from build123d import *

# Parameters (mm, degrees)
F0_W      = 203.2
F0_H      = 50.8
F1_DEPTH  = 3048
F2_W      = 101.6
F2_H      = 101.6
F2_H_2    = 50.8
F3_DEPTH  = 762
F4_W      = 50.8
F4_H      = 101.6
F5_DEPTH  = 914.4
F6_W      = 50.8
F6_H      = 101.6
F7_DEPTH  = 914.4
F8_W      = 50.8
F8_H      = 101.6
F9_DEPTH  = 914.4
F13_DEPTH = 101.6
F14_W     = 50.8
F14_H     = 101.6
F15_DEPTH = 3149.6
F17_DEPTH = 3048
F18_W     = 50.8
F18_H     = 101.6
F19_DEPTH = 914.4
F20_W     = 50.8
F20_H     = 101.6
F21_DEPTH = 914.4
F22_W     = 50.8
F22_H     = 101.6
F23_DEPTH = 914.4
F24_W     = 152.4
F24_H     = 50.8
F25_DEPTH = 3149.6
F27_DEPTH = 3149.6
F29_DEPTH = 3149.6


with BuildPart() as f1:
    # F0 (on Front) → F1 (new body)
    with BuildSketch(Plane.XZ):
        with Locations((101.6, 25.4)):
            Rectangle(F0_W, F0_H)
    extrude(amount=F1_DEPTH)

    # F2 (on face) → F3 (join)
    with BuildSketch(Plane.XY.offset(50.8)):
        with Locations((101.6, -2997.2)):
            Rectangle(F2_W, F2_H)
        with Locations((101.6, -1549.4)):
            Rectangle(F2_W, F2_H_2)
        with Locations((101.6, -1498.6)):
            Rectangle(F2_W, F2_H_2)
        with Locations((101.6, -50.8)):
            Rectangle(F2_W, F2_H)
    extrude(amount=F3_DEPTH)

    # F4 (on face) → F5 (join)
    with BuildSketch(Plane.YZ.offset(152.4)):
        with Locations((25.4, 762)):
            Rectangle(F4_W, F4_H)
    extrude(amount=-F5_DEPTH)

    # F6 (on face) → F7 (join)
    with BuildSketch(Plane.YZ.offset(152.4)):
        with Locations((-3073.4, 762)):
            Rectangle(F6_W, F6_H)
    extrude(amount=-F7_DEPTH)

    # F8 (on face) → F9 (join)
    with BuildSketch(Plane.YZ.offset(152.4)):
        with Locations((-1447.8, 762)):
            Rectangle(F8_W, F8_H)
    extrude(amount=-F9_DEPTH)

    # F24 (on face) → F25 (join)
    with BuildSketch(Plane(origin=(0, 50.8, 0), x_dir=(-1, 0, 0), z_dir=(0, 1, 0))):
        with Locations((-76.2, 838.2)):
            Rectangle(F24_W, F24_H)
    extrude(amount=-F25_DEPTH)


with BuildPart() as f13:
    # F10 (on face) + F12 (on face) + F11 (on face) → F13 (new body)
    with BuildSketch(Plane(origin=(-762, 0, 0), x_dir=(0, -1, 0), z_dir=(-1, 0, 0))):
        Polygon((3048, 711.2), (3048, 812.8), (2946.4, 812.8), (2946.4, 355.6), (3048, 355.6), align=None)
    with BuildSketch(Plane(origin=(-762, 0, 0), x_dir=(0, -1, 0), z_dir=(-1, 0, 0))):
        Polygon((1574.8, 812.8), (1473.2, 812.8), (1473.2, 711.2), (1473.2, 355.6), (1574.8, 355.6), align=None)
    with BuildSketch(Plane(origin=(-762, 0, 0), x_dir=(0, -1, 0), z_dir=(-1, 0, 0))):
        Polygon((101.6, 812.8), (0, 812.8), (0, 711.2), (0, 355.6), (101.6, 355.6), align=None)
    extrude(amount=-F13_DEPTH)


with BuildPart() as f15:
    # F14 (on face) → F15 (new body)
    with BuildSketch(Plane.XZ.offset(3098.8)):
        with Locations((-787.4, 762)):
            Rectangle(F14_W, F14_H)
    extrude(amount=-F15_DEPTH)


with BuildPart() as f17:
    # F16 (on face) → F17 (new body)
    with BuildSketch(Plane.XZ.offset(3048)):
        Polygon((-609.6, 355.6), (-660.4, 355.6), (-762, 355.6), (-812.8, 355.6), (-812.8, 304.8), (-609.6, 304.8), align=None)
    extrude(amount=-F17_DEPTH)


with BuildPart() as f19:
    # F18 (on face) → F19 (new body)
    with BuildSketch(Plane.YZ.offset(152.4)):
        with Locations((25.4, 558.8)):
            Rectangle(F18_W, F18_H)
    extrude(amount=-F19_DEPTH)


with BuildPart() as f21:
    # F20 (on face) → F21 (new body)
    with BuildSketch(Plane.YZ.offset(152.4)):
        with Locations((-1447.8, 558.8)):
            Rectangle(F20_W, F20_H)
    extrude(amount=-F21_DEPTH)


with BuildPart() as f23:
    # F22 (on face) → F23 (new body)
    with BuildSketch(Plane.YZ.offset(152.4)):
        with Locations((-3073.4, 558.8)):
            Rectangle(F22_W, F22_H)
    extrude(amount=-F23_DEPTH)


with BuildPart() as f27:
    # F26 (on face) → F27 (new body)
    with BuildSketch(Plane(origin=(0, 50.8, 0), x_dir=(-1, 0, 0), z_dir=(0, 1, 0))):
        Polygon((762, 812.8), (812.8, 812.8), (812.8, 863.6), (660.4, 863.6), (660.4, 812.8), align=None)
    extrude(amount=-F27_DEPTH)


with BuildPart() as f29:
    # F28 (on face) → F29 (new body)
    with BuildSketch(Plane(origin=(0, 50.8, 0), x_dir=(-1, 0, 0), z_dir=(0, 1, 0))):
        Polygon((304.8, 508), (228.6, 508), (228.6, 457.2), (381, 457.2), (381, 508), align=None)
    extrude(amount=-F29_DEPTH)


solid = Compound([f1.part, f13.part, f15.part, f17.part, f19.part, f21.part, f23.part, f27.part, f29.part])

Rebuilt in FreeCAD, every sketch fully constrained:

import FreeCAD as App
import Part
import Sketcher
from FreeCAD import Vector
Q = App.Units.Quantity

doc = App.newDocument("Part")
body = doc.addObject("PartDesign::Body", "Body")

# Sketch on XZ plane
sketch1 = body.newObject("Sketcher::SketchObject", "Sketch")
sketch1.AttachmentSupport = (doc.getObject("XZ_Plane"), [""])
sketch1.MapMode = "FlatFace"
sketch1.addGeometry([
    Part.LineSegment(Vector(0, 50.8, 0), Vector(0, 0, 0)),
    Part.LineSegment(Vector(0, 0, 0), Vector(203.2, 0, 0)),
    Part.LineSegment(Vector(203.2, 0, 0), Vector(203.2, 50.8, 0)),
    Part.LineSegment(Vector(203.2, 50.8, 0), Vector(0, 50.8, 0)),
], False)
sketch1.addConstraint([
    Sketcher.Constraint("Coincident", 0, 2, 1, 1),
    Sketcher.Constraint("Coincident", 1, 2, 2, 1),
    Sketcher.Constraint("Coincident", 2, 2, 3, 1),
    Sketcher.Constraint("Coincident", 3, 2, 0, 1),
    Sketcher.Constraint("Vertical", 0),
    Sketcher.Constraint("Horizontal", 1),
    Sketcher.Constraint("Vertical", 2),
    Sketcher.Constraint("Horizontal", 3),
    Sketcher.Constraint("Coincident", 0, 2, -1, 1),
    Sketcher.Constraint("DistanceX", 1, 1, 1, 2, Q("8 in")),
    Sketcher.Constraint("DistanceY", 0, 2, 0, 1, Q("2 in")),
])
pad1 = body.newObject("PartDesign::Pad", "Pad")
pad1.Profile = sketch1
pad1.Length = Q("120 in")

# Sketch on XY plane
sketch2 = body.newObject("Sketcher::SketchObject", "Sketch001")
sketch2.AttachmentSupport = (doc.getObject("XY_Plane"), [""])
sketch2.MapMode = "FlatFace"
sketch2.AttachmentOffset = App.Placement(Vector(0, 0, 2 * 25.4), App.Rotation())
sketch2.addGeometry([
    Part.LineSegment(Vector(50.8, -2946.4, 0), Vector(50.8, -3048, 0)),  # 0
    Part.LineSegment(Vector(50.8, -3048, 0), Vector(152.4, -3048, 0)),  # 1
    Part.LineSegment(Vector(152.4, -3048, 0), Vector(152.4, -2946.4, 0)),  # 2
    Part.LineSegment(Vector(152.4, -2946.4, 0), Vector(50.8, -2946.4, 0)),  # 3
    Part.LineSegment(Vector(50.8, -1574.8, 0), Vector(152.4, -1574.8, 0)),  # 4
    Part.LineSegment(Vector(152.4, -1574.8, 0), Vector(152.4, -1473.2, 0)),  # 5
    Part.LineSegment(Vector(152.4, -1473.2, 0), Vector(50.8, -1473.2, 0)),  # 6
    Part.LineSegment(Vector(50.8, -1473.2, 0), Vector(50.8, -1574.8, 0)),  # 7
    Part.LineSegment(Vector(50.8, 0, 0), Vector(50.8, -101.6, 0)),  # 8
    Part.LineSegment(Vector(50.8, -101.6, 0), Vector(152.4, -101.6, 0)),  # 9
    Part.LineSegment(Vector(152.4, -101.6, 0), Vector(152.4, 0, 0)),  # 10
    Part.LineSegment(Vector(152.4, 0, 0), Vector(50.8, 0, 0)),  # 11
], False)
sketch2.addConstraint([
    Sketcher.Constraint("Coincident", 0, 2, 1, 1),
    Sketcher.Constraint("Coincident", 1, 2, 2, 1),
    Sketcher.Constraint("Coincident", 2, 2, 3, 1),
    Sketcher.Constraint("Coincident", 3, 2, 0, 1),
    Sketcher.Constraint("Coincident", 4, 2, 5, 1),
    Sketcher.Constraint("Coincident", 5, 2, 6, 1),
    Sketcher.Constraint("Coincident", 6, 2, 7, 1),
    Sketcher.Constraint("Coincident", 7, 2, 4, 1),
    Sketcher.Constraint("Coincident", 8, 2, 9, 1),
    Sketcher.Constraint("Coincident", 9, 2, 10, 1),
    Sketcher.Constraint("Coincident", 10, 2, 11, 1),
    Sketcher.Constraint("Coincident", 11, 2, 8, 1),
    Sketcher.Constraint("Vertical", 0),
    Sketcher.Constraint("Horizontal", 1),
    Sketcher.Constraint("Vertical", 2),
    Sketcher.Constraint("Horizontal", 3),
    Sketcher.Constraint("Horizontal", 4),
    Sketcher.Constraint("Vertical", 5),
    Sketcher.Constraint("Horizontal", 6),
    Sketcher.Constraint("Vertical", 7),
    Sketcher.Constraint("Vertical", 8),
    Sketcher.Constraint("Horizontal", 9),
    Sketcher.Constraint("Vertical", 10),
    Sketcher.Constraint("Horizontal", 11),
    Sketcher.Constraint("PointOnObject", 10, 2, -1),
    Sketcher.Constraint("Vertical", 2, 2, 4, 2),
    Sketcher.Constraint("Vertical", 3, 2, 6, 2),
    Sketcher.Constraint("Vertical", 7, 2, 8, 2),
    Sketcher.Constraint("Vertical", 5, 2, 9, 2),
    Sketcher.Constraint("Equal", 11, 0),
    Sketcher.Constraint("Equal", 2, 5),
    Sketcher.Constraint("Equal", 7, 8),
    Sketcher.Constraint("DistanceX", 1, 1, 1, 2, Q("4 in")),
    Sketcher.Constraint("DistanceX", -1, 1, 0, 2, Q("2 in")),
    Sketcher.Constraint("DistanceY", 0, 2, -1, 1, Q("120 in")),
    Sketcher.Constraint("DistanceY", 4, 2, -1, 1, Q("62 in")),
])
pad2 = body.newObject("PartDesign::Pad", "Pad001")
pad2.Profile = sketch2
pad2.Length = Q("30 in")

# Sketch on YZ plane
sketch3 = body.newObject("Sketcher::SketchObject", "Sketch002")
sketch3.AttachmentSupport = (doc.getObject("YZ_Plane"), [""])
sketch3.MapMode = "FlatFace"
sketch3.AttachmentOffset = App.Placement(Vector(0, 0, 6 * 25.4), App.Rotation())
sketch3.addGeometry([
    Part.LineSegment(Vector(0, 812.8, 0), Vector(0, 711.2, 0)),
    Part.LineSegment(Vector(0, 711.2, 0), Vector(50.8, 711.2, 0)),
    Part.LineSegment(Vector(50.8, 711.2, 0), Vector(50.8, 812.8, 0)),
    Part.LineSegment(Vector(50.8, 812.8, 0), Vector(0, 812.8, 0)),
], False)
sketch3.addConstraint([
    Sketcher.Constraint("Coincident", 0, 2, 1, 1),
    Sketcher.Constraint("Coincident", 1, 2, 2, 1),
    Sketcher.Constraint("Coincident", 2, 2, 3, 1),
    Sketcher.Constraint("Coincident", 3, 2, 0, 1),
    Sketcher.Constraint("Vertical", 0),
    Sketcher.Constraint("Horizontal", 1),
    Sketcher.Constraint("Vertical", 2),
    Sketcher.Constraint("Horizontal", 3),
    Sketcher.Constraint("PointOnObject", 0, 2, -2),
    Sketcher.Constraint("DistanceX", 1, 1, 1, 2, Q("2 in")),
    Sketcher.Constraint("DistanceY", 0, 2, 0, 1, Q("4 in")),
    Sketcher.Constraint("DistanceY", -1, 1, 0, 2, Q("28 in")),
])
pad3 = body.newObject("PartDesign::Pad", "Pad002")
pad3.Profile = sketch3
pad3.Length = Q("36 in")
pad3.Reversed = True

# Sketch on YZ plane
sketch4 = body.newObject("Sketcher::SketchObject", "Sketch003")
sketch4.AttachmentSupport = (doc.getObject("YZ_Plane"), [""])
sketch4.MapMode = "FlatFace"
sketch4.AttachmentOffset = App.Placement(Vector(0, 0, 6 * 25.4), App.Rotation())
sketch4.addGeometry([
    Part.LineSegment(Vector(-3098.8, 812.8, 0), Vector(-3098.8, 711.2, 0)),
    Part.LineSegment(Vector(-3098.8, 711.2, 0), Vector(-3048, 711.2, 0)),
    Part.LineSegment(Vector(-3048, 711.2, 0), Vector(-3048, 812.8, 0)),
    Part.LineSegment(Vector(-3048, 812.8, 0), Vector(-3098.8, 812.8, 0)),
], False)
sketch4.addConstraint([
    Sketcher.Constraint("Coincident", 0, 2, 1, 1),
    Sketcher.Constraint("Coincident", 1, 2, 2, 1),
    Sketcher.Constraint("Coincident", 2, 2, 3, 1),
    Sketcher.Constraint("Coincident", 3, 2, 0, 1),
    Sketcher.Constraint("Vertical", 0),
    Sketcher.Constraint("Horizontal", 1),
    Sketcher.Constraint("Vertical", 2),
    Sketcher.Constraint("Horizontal", 3),
    Sketcher.Constraint("DistanceX", 1, 1, 1, 2, Q("2 in")),
    Sketcher.Constraint("DistanceY", 0, 2, 0, 1, Q("4 in")),
    Sketcher.Constraint("DistanceX", 0, 2, -1, 1, Q("122 in")),
    Sketcher.Constraint("DistanceY", -1, 1, 0, 2, Q("28 in")),
])
pad4 = body.newObject("PartDesign::Pad", "Pad003")
pad4.Profile = sketch4
pad4.Length = Q("36 in")
pad4.Reversed = True

# Sketch on YZ plane
sketch5 = body.newObject("Sketcher::SketchObject", "Sketch004")
sketch5.AttachmentSupport = (doc.getObject("YZ_Plane"), [""])
sketch5.MapMode = "FlatFace"
sketch5.AttachmentOffset = App.Placement(Vector(0, 0, 6 * 25.4), App.Rotation())
sketch5.addGeometry([
    Part.LineSegment(Vector(-1473.2, 812.8, 0), Vector(-1473.2, 711.2, 0)),
    Part.LineSegment(Vector(-1473.2, 711.2, 0), Vector(-1422.4, 711.2, 0)),
    Part.LineSegment(Vector(-1422.4, 711.2, 0), Vector(-1422.4, 812.8, 0)),
    Part.LineSegment(Vector(-1422.4, 812.8, 0), Vector(-1473.2, 812.8, 0)),
], False)
sketch5.addConstraint([
    Sketcher.Constraint("Coincident", 0, 2, 1, 1),
    Sketcher.Constraint("Coincident", 1, 2, 2, 1),
    Sketcher.Constraint("Coincident", 2, 2, 3, 1),
    Sketcher.Constraint("Coincident", 3, 2, 0, 1),
    Sketcher.Constraint("Vertical", 0),
    Sketcher.Constraint("Horizontal", 1),
    Sketcher.Constraint("Vertical", 2),
    Sketcher.Constraint("Horizontal", 3),
    Sketcher.Constraint("DistanceX", 1, 1, 1, 2, Q("2 in")),
    Sketcher.Constraint("DistanceY", 0, 2, 0, 1, Q("4 in")),
    Sketcher.Constraint("DistanceX", 0, 2, -1, 1, Q("58 in")),
    Sketcher.Constraint("DistanceY", -1, 1, 0, 2, Q("28 in")),
])
pad5 = body.newObject("PartDesign::Pad", "Pad004")
pad5.Profile = sketch5
pad5.Length = Q("36 in")
pad5.Reversed = True

# Sketch on XZ plane
sketch6 = body.newObject("Sketcher::SketchObject", "Sketch005")
sketch6.AttachmentSupport = (doc.getObject("XZ_Plane"), [""])
sketch6.MapMode = "FlatFace"
sketch6.AttachmentOffset = App.Placement(Vector(0, 0, -2 * 25.4), App.Rotation())
sketch6.addGeometry([
    Part.LineSegment(Vector(152.4, 863.6, 0), Vector(152.4, 812.8, 0)),
    Part.LineSegment(Vector(152.4, 812.8, 0), Vector(0, 812.8, 0)),
    Part.LineSegment(Vector(0, 812.8, 0), Vector(0, 863.6, 0)),
    Part.LineSegment(Vector(0, 863.6, 0), Vector(152.4, 863.6, 0)),
], False)
sketch6.addConstraint([
    Sketcher.Constraint("Coincident", 0, 2, 1, 1),
    Sketcher.Constraint("Coincident", 1, 2, 2, 1),
    Sketcher.Constraint("Coincident", 2, 2, 3, 1),
    Sketcher.Constraint("Coincident", 3, 2, 0, 1),
    Sketcher.Constraint("Vertical", 0),
    Sketcher.Constraint("Horizontal", 1),
    Sketcher.Constraint("Vertical", 2),
    Sketcher.Constraint("Horizontal", 3),
    Sketcher.Constraint("PointOnObject", 1, 2, -2),
    Sketcher.Constraint("DistanceX", 1, 2, 1, 1, Q("6 in")),
    Sketcher.Constraint("DistanceY", 0, 2, 0, 1, Q("2 in")),
    Sketcher.Constraint("DistanceY", -1, 1, 0, 2, Q("32 in")),
])
pad6 = body.newObject("PartDesign::Pad", "Pad005")
pad6.Profile = sketch6
pad6.Length = Q("124 in")
body2 = doc.addObject("PartDesign::Body", "Body001")
body2.AllowCompound = True

# Sketch on YZ plane
sketch7 = body2.newObject("Sketcher::SketchObject", "Sketch006")
sketch7.AttachmentSupport = (doc.getObject("YZ_Plane001"), [""])
sketch7.MapMode = "FlatFace"
sketch7.AttachmentOffset = App.Placement(Vector(0, 0, -30 * 25.4), App.Rotation())
sketch7.addGeometry([
    Part.LineSegment(Vector(-3048, 812.8, 0), Vector(-2946.4, 812.8, 0)),  # 0
    Part.LineSegment(Vector(-2946.4, 812.8, 0), Vector(-2946.4, 355.6, 0)),  # 1
    Part.LineSegment(Vector(-2946.4, 355.6, 0), Vector(-3048, 355.6, 0)),  # 2
    Part.LineSegment(Vector(-3048, 355.6, 0), Vector(-3048, 812.8, 0)),  # 3
    Part.LineSegment(Vector(-1574.8, 812.8, 0), Vector(-1473.2, 812.8, 0)),  # 4
    Part.LineSegment(Vector(-1473.2, 812.8, 0), Vector(-1473.2, 355.6, 0)),  # 5
    Part.LineSegment(Vector(-1473.2, 355.6, 0), Vector(-1574.8, 355.6, 0)),  # 6
    Part.LineSegment(Vector(-1574.8, 355.6, 0), Vector(-1574.8, 812.8, 0)),  # 7
    Part.LineSegment(Vector(-101.6, 812.8, 0), Vector(0, 812.8, 0)),  # 8
    Part.LineSegment(Vector(0, 812.8, 0), Vector(0, 355.6, 0)),  # 9
    Part.LineSegment(Vector(0, 355.6, 0), Vector(-101.6, 355.6, 0)),  # 10
    Part.LineSegment(Vector(-101.6, 355.6, 0), Vector(-101.6, 812.8, 0)),  # 11
], False)
sketch7.addConstraint([
    Sketcher.Constraint("Coincident", 0, 2, 1, 1),
    Sketcher.Constraint("Coincident", 1, 2, 2, 1),
    Sketcher.Constraint("Coincident", 2, 2, 3, 1),
    Sketcher.Constraint("Coincident", 3, 2, 0, 1),
    Sketcher.Constraint("Coincident", 4, 2, 5, 1),
    Sketcher.Constraint("Coincident", 5, 2, 6, 1),
    Sketcher.Constraint("Coincident", 6, 2, 7, 1),
    Sketcher.Constraint("Coincident", 7, 2, 4, 1),
    Sketcher.Constraint("Coincident", 8, 2, 9, 1),
    Sketcher.Constraint("Coincident", 9, 2, 10, 1),
    Sketcher.Constraint("Coincident", 10, 2, 11, 1),
    Sketcher.Constraint("Coincident", 11, 2, 8, 1),
    Sketcher.Constraint("Horizontal", 0),
    Sketcher.Constraint("Vertical", 1),
    Sketcher.Constraint("Horizontal", 2),
    Sketcher.Constraint("Vertical", 3),
    Sketcher.Constraint("Horizontal", 4),
    Sketcher.Constraint("Vertical", 5),
    Sketcher.Constraint("Horizontal", 6),
    Sketcher.Constraint("Vertical", 7),
    Sketcher.Constraint("Horizontal", 8),
    Sketcher.Constraint("Vertical", 9),
    Sketcher.Constraint("Horizontal", 10),
    Sketcher.Constraint("Vertical", 11),
    Sketcher.Constraint("PointOnObject", 8, 2, -2),
    Sketcher.Constraint("Horizontal", 3, 2, 4, 2),
    Sketcher.Constraint("Horizontal", 2, 2, 5, 2),
    Sketcher.Constraint("Horizontal", 7, 2, 8, 2),
    Sketcher.Constraint("Horizontal", 6, 2, 9, 2),
    Sketcher.Constraint("Equal", 2, 4),
    Sketcher.Constraint("Equal", 6, 8),
    Sketcher.Constraint("DistanceX", 0, 1, 0, 2, Q("4 in")),
    Sketcher.Constraint("DistanceY", 1, 2, 1, 1, Q("18 in")),
    Sketcher.Constraint("DistanceX", 0, 2, -1, 1, Q("116 in")),
    Sketcher.Constraint("DistanceY", -1, 1, 0, 2, Q("32 in")),
    Sketcher.Constraint("DistanceX", 4, 2, -1, 1, Q("58 in")),
])
pad7 = body2.newObject("PartDesign::Pad", "Pad006")
pad7.Profile = sketch7
pad7.Length = Q("4 in")
body3 = doc.addObject("PartDesign::Body", "Body002")

# Sketch on XZ plane
sketch8 = body3.newObject("Sketcher::SketchObject", "Sketch007")
sketch8.AttachmentSupport = (doc.getObject("XZ_Plane002"), [""])
sketch8.MapMode = "FlatFace"
sketch8.AttachmentOffset = App.Placement(Vector(0, 0, 122 * 25.4), App.Rotation())
sketch8.addGeometry([
    Part.LineSegment(Vector(-812.8, 812.8, 0), Vector(-812.8, 711.2, 0)),
    Part.LineSegment(Vector(-812.8, 711.2, 0), Vector(-762, 711.2, 0)),
    Part.LineSegment(Vector(-762, 711.2, 0), Vector(-762, 812.8, 0)),
    Part.LineSegment(Vector(-762, 812.8, 0), Vector(-812.8, 812.8, 0)),
], False)
sketch8.addConstraint([
    Sketcher.Constraint("Coincident", 0, 2, 1, 1),
    Sketcher.Constraint("Coincident", 1, 2, 2, 1),
    Sketcher.Constraint("Coincident", 2, 2, 3, 1),
    Sketcher.Constraint("Coincident", 3, 2, 0, 1),
    Sketcher.Constraint("Vertical", 0),
    Sketcher.Constraint("Horizontal", 1),
    Sketcher.Constraint("Vertical", 2),
    Sketcher.Constraint("Horizontal", 3),
    Sketcher.Constraint("DistanceX", 1, 1, 1, 2, Q("2 in")),
    Sketcher.Constraint("DistanceY", 0, 2, 0, 1, Q("4 in")),
    Sketcher.Constraint("DistanceX", 0, 2, -1, 1, Q("32 in")),
    Sketcher.Constraint("DistanceY", -1, 1, 0, 2, Q("28 in")),
])
pad8 = body3.newObject("PartDesign::Pad", "Pad007")
pad8.Profile = sketch8
pad8.Length = Q("124 in")
pad8.Reversed = True
body4 = doc.addObject("PartDesign::Body", "Body003")

# Sketch on XZ plane
sketch9 = body4.newObject("Sketcher::SketchObject", "Sketch008")
sketch9.AttachmentSupport = (doc.getObject("XZ_Plane003"), [""])
sketch9.MapMode = "FlatFace"
sketch9.AttachmentOffset = App.Placement(Vector(0, 0, 120 * 25.4), App.Rotation())
sketch9.addGeometry([
    Part.LineSegment(Vector(-609.6, 355.6, 0), Vector(-812.8, 355.6, 0)),
    Part.LineSegment(Vector(-812.8, 355.6, 0), Vector(-812.8, 304.8, 0)),
    Part.LineSegment(Vector(-812.8, 304.8, 0), Vector(-609.6, 304.8, 0)),
    Part.LineSegment(Vector(-609.6, 304.8, 0), Vector(-609.6, 355.6, 0)),
], False)
sketch9.addConstraint([
    Sketcher.Constraint("Coincident", 0, 2, 1, 1),
    Sketcher.Constraint("Coincident", 1, 2, 2, 1),
    Sketcher.Constraint("Coincident", 2, 2, 3, 1),
    Sketcher.Constraint("Coincident", 3, 2, 0, 1),
    Sketcher.Constraint("Horizontal", 0),
    Sketcher.Constraint("Vertical", 1),
    Sketcher.Constraint("Horizontal", 2),
    Sketcher.Constraint("Vertical", 3),
    Sketcher.Constraint("DistanceX", 0, 2, 0, 1, Q("8 in")),
    Sketcher.Constraint("DistanceY", 1, 2, 1, 1, Q("2 in")),
    Sketcher.Constraint("DistanceX", 0, 2, -1, 1, Q("32 in")),
    Sketcher.Constraint("DistanceY", -1, 1, 0, 2, Q("14 in")),
])
pad9 = body4.newObject("PartDesign::Pad", "Pad008")
pad9.Profile = sketch9
pad9.Length = Q("120 in")
pad9.Reversed = True
body5 = doc.addObject("PartDesign::Body", "Body004")

# Sketch on YZ plane
sketch10 = body5.newObject("Sketcher::SketchObject", "Sketch009")
sketch10.AttachmentSupport = (doc.getObject("YZ_Plane004"), [""])
sketch10.MapMode = "FlatFace"
sketch10.AttachmentOffset = App.Placement(Vector(0, 0, 6 * 25.4), App.Rotation())
sketch10.addGeometry([
    Part.LineSegment(Vector(0, 609.6, 0), Vector(0, 508, 0)),
    Part.LineSegment(Vector(0, 508, 0), Vector(50.8, 508, 0)),
    Part.LineSegment(Vector(50.8, 508, 0), Vector(50.8, 609.6, 0)),
    Part.LineSegment(Vector(50.8, 609.6, 0), Vector(0, 609.6, 0)),
], False)
sketch10.addConstraint([
    Sketcher.Constraint("Coincident", 0, 2, 1, 1),
    Sketcher.Constraint("Coincident", 1, 2, 2, 1),
    Sketcher.Constraint("Coincident", 2, 2, 3, 1),
    Sketcher.Constraint("Coincident", 3, 2, 0, 1),
    Sketcher.Constraint("Vertical", 0),
    Sketcher.Constraint("Horizontal", 1),
    Sketcher.Constraint("Vertical", 2),
    Sketcher.Constraint("Horizontal", 3),
    Sketcher.Constraint("PointOnObject", 0, 2, -2),
    Sketcher.Constraint("DistanceX", 1, 1, 1, 2, Q("2 in")),
    Sketcher.Constraint("DistanceY", 0, 2, 0, 1, Q("4 in")),
    Sketcher.Constraint("DistanceY", -1, 1, 0, 2, Q("20 in")),
])
pad10 = body5.newObject("PartDesign::Pad", "Pad009")
pad10.Profile = sketch10
pad10.Length = Q("36 in")
pad10.Reversed = True
body6 = doc.addObject("PartDesign::Body", "Body005")

# Sketch on YZ plane
sketch11 = body6.newObject("Sketcher::SketchObject", "Sketch010")
sketch11.AttachmentSupport = (doc.getObject("YZ_Plane005"), [""])
sketch11.MapMode = "FlatFace"
sketch11.AttachmentOffset = App.Placement(Vector(0, 0, 6 * 25.4), App.Rotation())
sketch11.addGeometry([
    Part.LineSegment(Vector(-1473.2, 609.6, 0), Vector(-1473.2, 508, 0)),
    Part.LineSegment(Vector(-1473.2, 508, 0), Vector(-1422.4, 508, 0)),
    Part.LineSegment(Vector(-1422.4, 508, 0), Vector(-1422.4, 609.6, 0)),
    Part.LineSegment(Vector(-1422.4, 609.6, 0), Vector(-1473.2, 609.6, 0)),
], False)
sketch11.addConstraint([
    Sketcher.Constraint("Coincident", 0, 2, 1, 1),
    Sketcher.Constraint("Coincident", 1, 2, 2, 1),
    Sketcher.Constraint("Coincident", 2, 2, 3, 1),
    Sketcher.Constraint("Coincident", 3, 2, 0, 1),
    Sketcher.Constraint("Vertical", 0),
    Sketcher.Constraint("Horizontal", 1),
    Sketcher.Constraint("Vertical", 2),
    Sketcher.Constraint("Horizontal", 3),
    Sketcher.Constraint("DistanceX", 1, 1, 1, 2, Q("2 in")),
    Sketcher.Constraint("DistanceY", 0, 2, 0, 1, Q("4 in")),
    Sketcher.Constraint("DistanceX", 0, 2, -1, 1, Q("58 in")),
    Sketcher.Constraint("DistanceY", -1, 1, 0, 2, Q("20 in")),
])
pad11 = body6.newObject("PartDesign::Pad", "Pad010")
pad11.Profile = sketch11
pad11.Length = Q("36 in")
pad11.Reversed = True
body7 = doc.addObject("PartDesign::Body", "Body006")

# Sketch on YZ plane
sketch12 = body7.newObject("Sketcher::SketchObject", "Sketch011")
sketch12.AttachmentSupport = (doc.getObject("YZ_Plane006"), [""])
sketch12.MapMode = "FlatFace"
sketch12.AttachmentOffset = App.Placement(Vector(0, 0, 6 * 25.4), App.Rotation())
sketch12.addGeometry([
    Part.LineSegment(Vector(-3098.8, 609.6, 0), Vector(-3098.8, 508, 0)),
    Part.LineSegment(Vector(-3098.8, 508, 0), Vector(-3048, 508, 0)),
    Part.LineSegment(Vector(-3048, 508, 0), Vector(-3048, 609.6, 0)),
    Part.LineSegment(Vector(-3048, 609.6, 0), Vector(-3098.8, 609.6, 0)),
], False)
sketch12.addConstraint([
    Sketcher.Constraint("Coincident", 0, 2, 1, 1),
    Sketcher.Constraint("Coincident", 1, 2, 2, 1),
    Sketcher.Constraint("Coincident", 2, 2, 3, 1),
    Sketcher.Constraint("Coincident", 3, 2, 0, 1),
    Sketcher.Constraint("Vertical", 0),
    Sketcher.Constraint("Horizontal", 1),
    Sketcher.Constraint("Vertical", 2),
    Sketcher.Constraint("Horizontal", 3),
    Sketcher.Constraint("DistanceX", 1, 1, 1, 2, Q("2 in")),
    Sketcher.Constraint("DistanceY", 0, 2, 0, 1, Q("4 in")),
    Sketcher.Constraint("DistanceX", 0, 2, -1, 1, Q("122 in")),
    Sketcher.Constraint("DistanceY", -1, 1, 0, 2, Q("20 in")),
])
pad12 = body7.newObject("PartDesign::Pad", "Pad011")
pad12.Profile = sketch12
pad12.Length = Q("36 in")
pad12.Reversed = True
body8 = doc.addObject("PartDesign::Body", "Body007")

# Sketch on XZ plane
sketch13 = body8.newObject("Sketcher::SketchObject", "Sketch012")
sketch13.AttachmentSupport = (doc.getObject("XZ_Plane007"), [""])
sketch13.MapMode = "FlatFace"
sketch13.AttachmentOffset = App.Placement(Vector(0, 0, -2 * 25.4), App.Rotation())
sketch13.addGeometry([
    Part.LineSegment(Vector(-812.8, 812.8, 0), Vector(-812.8, 863.6, 0)),
    Part.LineSegment(Vector(-812.8, 863.6, 0), Vector(-660.4, 863.6, 0)),
    Part.LineSegment(Vector(-660.4, 863.6, 0), Vector(-660.4, 812.8, 0)),
    Part.LineSegment(Vector(-660.4, 812.8, 0), Vector(-812.8, 812.8, 0)),
], False)
sketch13.addConstraint([
    Sketcher.Constraint("Coincident", 0, 2, 1, 1),
    Sketcher.Constraint("Coincident", 1, 2, 2, 1),
    Sketcher.Constraint("Coincident", 2, 2, 3, 1),
    Sketcher.Constraint("Coincident", 3, 2, 0, 1),
    Sketcher.Constraint("Vertical", 0),
    Sketcher.Constraint("Horizontal", 1),
    Sketcher.Constraint("Vertical", 2),
    Sketcher.Constraint("Horizontal", 3),
    Sketcher.Constraint("DistanceX", 1, 1, 1, 2, Q("6 in")),
    Sketcher.Constraint("DistanceY", 0, 1, 0, 2, Q("2 in")),
    Sketcher.Constraint("DistanceX", 0, 2, -1, 1, Q("32 in")),
    Sketcher.Constraint("DistanceY", -1, 1, 0, 2, Q("34 in")),
])
pad13 = body8.newObject("PartDesign::Pad", "Pad012")
pad13.Profile = sketch13
pad13.Length = Q("124 in")
body9 = doc.addObject("PartDesign::Body", "Body008")

# Sketch on XZ plane
sketch14 = body9.newObject("Sketcher::SketchObject", "Sketch013")
sketch14.AttachmentSupport = (doc.getObject("XZ_Plane008"), [""])
sketch14.MapMode = "FlatFace"
sketch14.AttachmentOffset = App.Placement(Vector(0, 0, -2 * 25.4), App.Rotation())
sketch14.addGeometry([
    Part.LineSegment(Vector(-228.6, 508, 0), Vector(-228.6, 457.2, 0)),
    Part.LineSegment(Vector(-228.6, 457.2, 0), Vector(-381, 457.2, 0)),
    Part.LineSegment(Vector(-381, 457.2, 0), Vector(-381, 508, 0)),
    Part.LineSegment(Vector(-381, 508, 0), Vector(-228.6, 508, 0)),
], False)
sketch14.addConstraint([
    Sketcher.Constraint("Coincident", 0, 2, 1, 1),
    Sketcher.Constraint("Coincident", 1, 2, 2, 1),
    Sketcher.Constraint("Coincident", 2, 2, 3, 1),
    Sketcher.Constraint("Coincident", 3, 2, 0, 1),
    Sketcher.Constraint("Vertical", 0),
    Sketcher.Constraint("Horizontal", 1),
    Sketcher.Constraint("Vertical", 2),
    Sketcher.Constraint("Horizontal", 3),
    Sketcher.Constraint("DistanceX", 1, 2, 1, 1, Q("6 in")),
    Sketcher.Constraint("DistanceY", 0, 2, 0, 1, Q("2 in")),
    Sketcher.Constraint("DistanceX", 0, 2, -1, 1, Q("9 in")),
    Sketcher.Constraint("DistanceY", -1, 1, 0, 2, Q("18 in")),
])
pad14 = body9.newObject("PartDesign::Pad", "Pad013")
pad14.Profile = sketch14
pad14.Length = Q("124 in")

doc.recompute()
